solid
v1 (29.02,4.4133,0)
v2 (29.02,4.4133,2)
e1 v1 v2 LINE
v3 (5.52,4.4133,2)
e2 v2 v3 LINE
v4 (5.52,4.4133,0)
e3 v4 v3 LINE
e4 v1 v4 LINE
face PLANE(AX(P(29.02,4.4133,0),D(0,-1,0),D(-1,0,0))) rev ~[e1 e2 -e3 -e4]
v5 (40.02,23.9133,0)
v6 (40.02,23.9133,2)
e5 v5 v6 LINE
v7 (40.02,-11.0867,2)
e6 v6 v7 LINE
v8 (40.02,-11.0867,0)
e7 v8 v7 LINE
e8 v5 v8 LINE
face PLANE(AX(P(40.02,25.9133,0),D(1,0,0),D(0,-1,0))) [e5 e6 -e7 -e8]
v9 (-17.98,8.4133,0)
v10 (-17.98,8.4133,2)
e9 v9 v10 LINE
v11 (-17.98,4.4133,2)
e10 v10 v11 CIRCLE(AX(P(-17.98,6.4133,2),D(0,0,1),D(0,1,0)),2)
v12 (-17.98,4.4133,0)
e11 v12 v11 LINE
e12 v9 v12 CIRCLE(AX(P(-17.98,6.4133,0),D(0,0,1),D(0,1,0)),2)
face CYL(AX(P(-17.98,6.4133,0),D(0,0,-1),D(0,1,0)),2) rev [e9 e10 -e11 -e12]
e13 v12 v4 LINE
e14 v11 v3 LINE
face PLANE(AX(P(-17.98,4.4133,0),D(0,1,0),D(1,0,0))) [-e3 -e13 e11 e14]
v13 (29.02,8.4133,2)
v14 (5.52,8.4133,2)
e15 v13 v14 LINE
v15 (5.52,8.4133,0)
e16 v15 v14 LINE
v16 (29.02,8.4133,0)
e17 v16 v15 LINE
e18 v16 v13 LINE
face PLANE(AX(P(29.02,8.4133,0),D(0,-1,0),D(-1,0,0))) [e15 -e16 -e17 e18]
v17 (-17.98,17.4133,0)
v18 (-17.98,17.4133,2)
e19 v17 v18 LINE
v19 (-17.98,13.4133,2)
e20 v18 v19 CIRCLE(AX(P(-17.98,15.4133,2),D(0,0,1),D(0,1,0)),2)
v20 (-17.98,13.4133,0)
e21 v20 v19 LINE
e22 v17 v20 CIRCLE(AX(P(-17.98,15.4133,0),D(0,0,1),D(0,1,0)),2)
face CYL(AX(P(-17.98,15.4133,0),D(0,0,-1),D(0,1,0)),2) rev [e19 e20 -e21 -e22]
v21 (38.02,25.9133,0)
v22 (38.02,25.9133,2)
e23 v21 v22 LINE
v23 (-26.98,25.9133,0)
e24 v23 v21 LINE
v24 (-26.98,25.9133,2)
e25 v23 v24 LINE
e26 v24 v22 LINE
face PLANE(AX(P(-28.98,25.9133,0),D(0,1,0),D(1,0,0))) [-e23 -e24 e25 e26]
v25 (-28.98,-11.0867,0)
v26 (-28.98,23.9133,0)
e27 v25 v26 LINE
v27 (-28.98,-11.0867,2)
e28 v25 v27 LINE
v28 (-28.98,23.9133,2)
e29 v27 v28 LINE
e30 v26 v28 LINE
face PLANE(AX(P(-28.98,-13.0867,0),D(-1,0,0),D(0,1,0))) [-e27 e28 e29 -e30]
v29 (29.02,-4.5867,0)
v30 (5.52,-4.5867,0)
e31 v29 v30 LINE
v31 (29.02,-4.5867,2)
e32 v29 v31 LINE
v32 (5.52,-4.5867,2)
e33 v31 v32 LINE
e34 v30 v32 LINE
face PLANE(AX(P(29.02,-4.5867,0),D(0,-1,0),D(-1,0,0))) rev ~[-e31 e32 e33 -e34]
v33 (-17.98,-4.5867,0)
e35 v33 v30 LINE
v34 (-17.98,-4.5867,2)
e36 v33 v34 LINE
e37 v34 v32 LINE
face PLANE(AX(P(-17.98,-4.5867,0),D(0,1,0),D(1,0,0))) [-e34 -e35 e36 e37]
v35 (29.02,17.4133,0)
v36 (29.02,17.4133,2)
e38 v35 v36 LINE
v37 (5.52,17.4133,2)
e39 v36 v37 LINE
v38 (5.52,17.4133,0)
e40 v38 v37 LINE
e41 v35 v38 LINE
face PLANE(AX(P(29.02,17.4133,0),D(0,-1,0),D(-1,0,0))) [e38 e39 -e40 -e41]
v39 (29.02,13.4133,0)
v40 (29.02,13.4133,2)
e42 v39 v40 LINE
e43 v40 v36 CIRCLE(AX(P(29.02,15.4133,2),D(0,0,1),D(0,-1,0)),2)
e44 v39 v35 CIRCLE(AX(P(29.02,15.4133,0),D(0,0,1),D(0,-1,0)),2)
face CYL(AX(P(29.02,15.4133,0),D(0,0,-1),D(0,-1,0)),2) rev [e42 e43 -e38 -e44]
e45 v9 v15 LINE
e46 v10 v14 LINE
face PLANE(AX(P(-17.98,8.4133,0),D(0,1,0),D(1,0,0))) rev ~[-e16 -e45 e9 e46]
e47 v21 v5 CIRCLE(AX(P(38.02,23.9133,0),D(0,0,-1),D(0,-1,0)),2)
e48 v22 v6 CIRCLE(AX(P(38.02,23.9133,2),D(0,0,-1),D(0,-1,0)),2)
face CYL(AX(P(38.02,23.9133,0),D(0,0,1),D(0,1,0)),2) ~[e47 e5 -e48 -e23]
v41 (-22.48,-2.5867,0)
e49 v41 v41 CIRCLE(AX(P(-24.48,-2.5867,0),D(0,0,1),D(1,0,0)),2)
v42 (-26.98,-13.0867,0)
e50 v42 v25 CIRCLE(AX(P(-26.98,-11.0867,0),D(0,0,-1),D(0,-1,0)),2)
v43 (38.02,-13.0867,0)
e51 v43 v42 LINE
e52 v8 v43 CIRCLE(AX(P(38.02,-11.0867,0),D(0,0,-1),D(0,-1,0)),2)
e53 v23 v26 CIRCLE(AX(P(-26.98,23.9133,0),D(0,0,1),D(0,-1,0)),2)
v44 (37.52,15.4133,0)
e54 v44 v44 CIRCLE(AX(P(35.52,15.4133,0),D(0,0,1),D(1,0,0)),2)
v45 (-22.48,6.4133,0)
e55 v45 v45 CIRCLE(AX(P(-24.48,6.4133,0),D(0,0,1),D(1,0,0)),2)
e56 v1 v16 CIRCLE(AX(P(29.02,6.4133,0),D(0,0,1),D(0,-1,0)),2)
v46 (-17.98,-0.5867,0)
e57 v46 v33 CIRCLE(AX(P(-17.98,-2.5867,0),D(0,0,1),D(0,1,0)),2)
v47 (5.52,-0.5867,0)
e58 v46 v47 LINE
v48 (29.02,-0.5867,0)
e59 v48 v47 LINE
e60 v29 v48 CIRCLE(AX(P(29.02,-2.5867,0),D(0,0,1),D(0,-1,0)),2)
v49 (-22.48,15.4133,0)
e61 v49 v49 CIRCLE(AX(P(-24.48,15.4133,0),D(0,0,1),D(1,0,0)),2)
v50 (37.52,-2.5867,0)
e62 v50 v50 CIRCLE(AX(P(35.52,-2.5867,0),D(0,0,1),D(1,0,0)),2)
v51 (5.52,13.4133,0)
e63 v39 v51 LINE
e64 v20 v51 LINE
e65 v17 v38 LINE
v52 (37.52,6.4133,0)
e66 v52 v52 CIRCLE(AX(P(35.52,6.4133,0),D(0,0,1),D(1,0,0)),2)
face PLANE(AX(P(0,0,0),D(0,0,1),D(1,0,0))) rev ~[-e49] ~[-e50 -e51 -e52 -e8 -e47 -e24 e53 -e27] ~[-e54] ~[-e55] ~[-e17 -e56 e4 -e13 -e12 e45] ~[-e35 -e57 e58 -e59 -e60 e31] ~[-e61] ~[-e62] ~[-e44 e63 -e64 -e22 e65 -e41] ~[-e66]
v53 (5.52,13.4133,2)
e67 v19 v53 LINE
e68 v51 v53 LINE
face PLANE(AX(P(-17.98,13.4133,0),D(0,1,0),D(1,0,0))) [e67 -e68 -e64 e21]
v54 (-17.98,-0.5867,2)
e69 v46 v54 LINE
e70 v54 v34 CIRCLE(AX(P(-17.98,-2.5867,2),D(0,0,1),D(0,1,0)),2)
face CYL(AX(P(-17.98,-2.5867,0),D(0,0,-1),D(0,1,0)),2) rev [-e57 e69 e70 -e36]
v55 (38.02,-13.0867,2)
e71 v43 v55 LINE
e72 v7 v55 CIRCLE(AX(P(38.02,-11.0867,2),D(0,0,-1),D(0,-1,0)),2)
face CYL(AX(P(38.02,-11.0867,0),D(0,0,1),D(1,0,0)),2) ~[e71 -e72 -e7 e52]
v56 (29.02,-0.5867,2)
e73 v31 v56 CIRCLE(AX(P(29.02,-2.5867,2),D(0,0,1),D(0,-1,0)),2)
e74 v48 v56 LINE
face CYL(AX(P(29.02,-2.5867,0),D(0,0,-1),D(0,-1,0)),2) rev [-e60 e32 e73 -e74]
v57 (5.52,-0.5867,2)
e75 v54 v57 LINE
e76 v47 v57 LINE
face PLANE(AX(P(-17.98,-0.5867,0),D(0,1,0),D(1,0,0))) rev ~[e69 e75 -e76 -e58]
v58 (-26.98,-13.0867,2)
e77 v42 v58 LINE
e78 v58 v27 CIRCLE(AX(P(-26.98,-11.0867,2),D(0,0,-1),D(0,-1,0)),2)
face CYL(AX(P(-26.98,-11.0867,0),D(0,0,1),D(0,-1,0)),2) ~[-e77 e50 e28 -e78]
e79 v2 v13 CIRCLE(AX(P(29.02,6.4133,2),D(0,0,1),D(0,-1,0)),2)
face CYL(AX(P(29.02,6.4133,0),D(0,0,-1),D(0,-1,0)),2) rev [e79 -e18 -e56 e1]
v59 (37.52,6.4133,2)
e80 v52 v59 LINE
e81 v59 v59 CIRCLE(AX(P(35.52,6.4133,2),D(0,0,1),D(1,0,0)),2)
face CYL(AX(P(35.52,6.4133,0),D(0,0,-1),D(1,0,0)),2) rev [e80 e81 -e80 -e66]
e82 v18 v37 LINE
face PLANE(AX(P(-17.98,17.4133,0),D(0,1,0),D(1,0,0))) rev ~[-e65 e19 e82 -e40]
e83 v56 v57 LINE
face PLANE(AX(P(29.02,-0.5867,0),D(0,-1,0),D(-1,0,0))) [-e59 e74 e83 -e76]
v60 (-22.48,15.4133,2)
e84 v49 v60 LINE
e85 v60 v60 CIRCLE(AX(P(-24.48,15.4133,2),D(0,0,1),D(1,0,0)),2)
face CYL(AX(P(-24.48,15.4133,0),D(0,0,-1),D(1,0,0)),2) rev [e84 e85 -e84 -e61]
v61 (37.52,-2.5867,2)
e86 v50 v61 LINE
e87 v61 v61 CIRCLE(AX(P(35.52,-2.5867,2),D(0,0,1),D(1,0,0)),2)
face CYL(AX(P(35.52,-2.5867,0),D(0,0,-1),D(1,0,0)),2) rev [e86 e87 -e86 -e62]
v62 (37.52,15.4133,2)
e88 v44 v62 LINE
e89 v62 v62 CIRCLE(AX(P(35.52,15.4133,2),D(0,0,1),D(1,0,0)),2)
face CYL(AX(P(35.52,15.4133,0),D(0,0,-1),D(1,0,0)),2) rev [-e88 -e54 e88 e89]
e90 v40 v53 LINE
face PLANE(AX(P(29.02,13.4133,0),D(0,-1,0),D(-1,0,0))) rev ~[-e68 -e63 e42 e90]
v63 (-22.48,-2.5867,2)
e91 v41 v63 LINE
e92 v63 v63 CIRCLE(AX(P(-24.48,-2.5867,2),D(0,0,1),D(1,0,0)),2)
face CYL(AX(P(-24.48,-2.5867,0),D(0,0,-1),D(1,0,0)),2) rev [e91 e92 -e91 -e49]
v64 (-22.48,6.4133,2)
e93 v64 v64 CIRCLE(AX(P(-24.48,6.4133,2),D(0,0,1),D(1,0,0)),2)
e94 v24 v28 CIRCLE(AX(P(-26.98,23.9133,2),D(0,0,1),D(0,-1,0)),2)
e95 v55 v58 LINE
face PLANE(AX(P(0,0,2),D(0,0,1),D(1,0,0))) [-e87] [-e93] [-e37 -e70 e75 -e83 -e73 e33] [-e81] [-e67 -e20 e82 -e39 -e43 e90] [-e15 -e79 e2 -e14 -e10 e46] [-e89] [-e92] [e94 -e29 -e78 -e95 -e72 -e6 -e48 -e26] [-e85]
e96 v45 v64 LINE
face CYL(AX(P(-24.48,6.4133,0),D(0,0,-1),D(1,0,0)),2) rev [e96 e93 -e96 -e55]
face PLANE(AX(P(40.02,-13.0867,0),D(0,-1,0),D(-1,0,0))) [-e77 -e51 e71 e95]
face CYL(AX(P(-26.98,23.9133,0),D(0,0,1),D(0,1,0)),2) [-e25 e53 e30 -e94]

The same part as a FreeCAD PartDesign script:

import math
import FreeCAD as App
import Part
import Sketcher
from FreeCAD import Vector
Q = App.Units.Quantity


def edges_at(feature, points):
    """Names of the edges that pass closest to the given points."""
    edges = feature.Shape.Edges
    near = lambda p: min(range(len(edges)), key=lambda i: edges[i].distToShape(Part.Vertex(*p))[0])
    return sorted({f"Edge{near(p) + 1}" for p in points})

doc = App.newDocument("Part")
body = doc.addObject("PartDesign::Body", "Body")

# Sketch on XY plane
sketch1 = doc.addObject("Sketcher::SketchObject", "Sketch")
body.addObject(sketch1)
sketch1.AttachmentSupport = (doc.XY_Plane, [""])
sketch1.MapMode = "FlatFace"
sketch1.addGeometry([
    Part.LineSegment(Vector(40, 25.9, 0), Vector(-29, 25.9, 0)),  # 0
    Part.LineSegment(Vector(-29, 25.9, 0), Vector(-29, -13.1, 0)),  # 1
    Part.LineSegment(Vector(-29, -13.1, 0), Vector(40, -13.1, 0)),  # 2
    Part.LineSegment(Vector(40, -13.1, 0), Vector(40, 25.9, 0)),  # 3
    Part.Circle(Vector(-24.5, -2.6, 0), Vector(0, 0, 1), 2),  # 4
    Part.ArcOfCircle(Part.Circle(Vector(-18, -2.6, 0), Vector(0, 0, 1), 2), math.radians(90), math.radians(270)),  # 5
    Part.LineSegment(Vector(-18, -0.6, 0), Vector(29, -0.6, 0)),  # 6
    Part.ArcOfCircle(Part.Circle(Vector(29, -2.6, 0), Vector(0, 0, 1), 2), math.radians(-90), math.radians(90)),  # 7
    Part.LineSegment(Vector(29, -4.6, 0), Vector(-18, -4.6, 0)),  # 8
    Part.Circle(Vector(35.5, -2.6, 0), Vector(0, 0, 1), 2),  # 9
    Part.Circle(Vector(-24.5, 6.4, 0), Vector(0, 0, 1), 2),  # 10
    Part.Circle(Vector(-24.5, 15.4, 0), Vector(0, 0, 1), 2),  # 11
    Part.ArcOfCircle(Part.Circle(Vector(-18, 6.4, 0), Vector(0, 0, 1), 2), math.radians(90), math.radians(270)),  # 12
    Part.LineSegment(Vector(-18, 8.4, 0), Vector(29, 8.4, 0)),  # 13
    Part.ArcOfCircle(Part.Circle(Vector(29, 6.4, 0), Vector(0, 0, 1), 2), math.radians(-90), math.radians(90)),  # 14
    Part.LineSegment(Vector(29, 4.4, 0), Vector(-18, 4.4, 0)),  # 15
    Part.ArcOfCircle(Part.Circle(Vector(-18, 15.4, 0), Vector(0, 0, 1), 2), math.radians(90), math.radians(270)),  # 16
    Part.LineSegment(Vector(-18, 17.4, 0), Vector(29, 17.4, 0)),  # 17
    Part.ArcOfCircle(Part.Circle(Vector(29, 15.4, 0), Vector(0, 0, 1), 2), math.radians(-90), math.radians(90)),  # 18
    Part.LineSegment(Vector(29, 13.4, 0), Vector(-18, 13.4, 0)),  # 19
    Part.Circle(Vector(35.5, 6.4, 0), Vector(0, 0, 1), 2),  # 20
    Part.Circle(Vector(35.5, 15.4, 0), Vector(0, 0, 1), 2),  # 21
], False)
sketch1.addConstraint([
    Sketcher.Constraint("Coincident", 0, 2, 1, 1),
    Sketcher.Constraint("Coincident", 1, 2, 2, 1),
    Sketcher.Constraint("Coincident", 2, 2, 3, 1),
    Sketcher.Constraint("Coincident", 3, 2, 0, 1),
    Sketcher.Constraint("Tangent", 5, 1, 6, 1),
    Sketcher.Constraint("Tangent", 6, 2, 7, 2),
    Sketcher.Constraint("Tangent", 7, 1, 8, 1),
    Sketcher.Constraint("Tangent", 8, 2, 5, 2),
    Sketcher.Constraint("Tangent", 12, 1, 13, 1),
    Sketcher.Constraint("Tangent", 13, 2, 14, 2),
    Sketcher.Constraint("Tangent", 14, 1, 15, 1),
    Sketcher.Constraint("Tangent", 15, 2, 12, 2),
    Sketcher.Constraint("Tangent", 16, 1, 17, 1),
    Sketcher.Constraint("Tangent", 17, 2, 18, 2),
    Sketcher.Constraint("Tangent", 18, 1, 19, 1),
    Sketcher.Constraint("Tangent", 19, 2, 16, 2),
    Sketcher.Constraint("Horizontal", 0),
    Sketcher.Constraint("Vertical", 1),
    Sketcher.Constraint("Horizontal", 2),
    Sketcher.Constraint("Vertical", 3),
    Sketcher.Constraint("Horizontal", 6),
    Sketcher.Constraint("Horizontal", 8),
    Sketcher.Constraint("Horizontal", 13),
    Sketcher.Constraint("Horizontal", 15),
    Sketcher.Constraint("Horizontal", 17),
    Sketcher.Constraint("Horizontal", 19),
    Sketcher.Constraint("Equal", 4, 5),
    Sketcher.Constraint("Equal", 7, 9),
    Sketcher.Constraint("Equal", 9, 10),
    Sketcher.Constraint("Equal", 10, 11),
    Sketcher.Constraint("Equal", 11, 12),
    Sketcher.Constraint("Equal", 14, 16),
    Sketcher.Constraint("Equal", 18, 20),
    Sketcher.Constraint("Equal", 20, 21),
    Sketcher.Constraint("Horizontal", 4, 3, 5, 3),
    Sketcher.Constraint("Horizontal", 7, 3, 9, 3),
    Sketcher.Constraint("Horizontal", 10, 3, 12, 3),
    Sketcher.Constraint("Horizontal", 11, 3, 16, 3),
    Sketcher.Constraint("Horizontal", 14, 3, 20, 3),
    Sketcher.Constraint("Horizontal", 18, 3, 21, 3),
    Sketcher.Constraint("Vertical", 4, 3, 10, 3),
    Sketcher.Constraint("Vertical", 10, 3, 11, 3),
    Sketcher.Constraint("Vertical", 5, 3, 12, 3),
    Sketcher.Constraint("Vertical", 7, 3, 14, 3),
    Sketcher.Constraint("Vertical", 12, 3, 16, 3),
    Sketcher.Constraint("Vertical", 14, 3, 18, 3),
    Sketcher.Constraint("Vertical", 9, 3, 20, 3),
    Sketcher.Constraint("Vertical", 20, 3, 21, 3),
    Sketcher.Constraint("Diameter", 4, Q("4 mm")),
    Sketcher.Constraint("DistanceX", 0, 2, 0, 1, Q("69 mm")),
    Sketcher.Constraint("DistanceY", 1, 2, 1, 1, Q("39 mm")),
    Sketcher.Constraint("DistanceX", 6, 1, 6, 2, Q("47 mm")),
    Sketcher.Constraint("DistanceX", 4, 3, 9, 3, Q("60 mm")),
    Sketcher.Constraint("DistanceY", 4, 3, 10, 3, Q("9 mm")),
    Sketcher.Constraint("DistanceY", 10, 3, 11, 3, Q("9 mm")),
    Sketcher.Constraint("DistanceX", 0, 2, 16, 3, Q("11 mm")),
    Sketcher.Constraint("DistanceX", 4, 3, 5, 3, Q("6.5 mm")),
    Sketcher.Constraint("DistanceY", 11, 3, 0, 2, Q("10.5 mm")),
    Sketcher.Constraint("DistanceX", 4, 3, -1, 1, Q("24.48 mm")),
    Sketcher.Constraint("DistanceY", 4, 3, -1, 1, Q("2.5867 mm")),
])
pad1 = doc.addObject("PartDesign::Pad", "Pad")
body.addObject(pad1)
pad1.Profile = sketch1
pad1.Length = 2
doc.recompute()

fillet = doc.addObject("PartDesign::Fillet", "Fillet")
body.addObject(fillet)
fillet.Base = (pad1, edges_at(pad1, [
    (-28.98, 25.913, 1),
    (40.02, 25.913, 1),
    (40.02, -13.087, 1),
    (-28.98, -13.087, 1),
]))
fillet.Radius = 2

doc.recompute()
